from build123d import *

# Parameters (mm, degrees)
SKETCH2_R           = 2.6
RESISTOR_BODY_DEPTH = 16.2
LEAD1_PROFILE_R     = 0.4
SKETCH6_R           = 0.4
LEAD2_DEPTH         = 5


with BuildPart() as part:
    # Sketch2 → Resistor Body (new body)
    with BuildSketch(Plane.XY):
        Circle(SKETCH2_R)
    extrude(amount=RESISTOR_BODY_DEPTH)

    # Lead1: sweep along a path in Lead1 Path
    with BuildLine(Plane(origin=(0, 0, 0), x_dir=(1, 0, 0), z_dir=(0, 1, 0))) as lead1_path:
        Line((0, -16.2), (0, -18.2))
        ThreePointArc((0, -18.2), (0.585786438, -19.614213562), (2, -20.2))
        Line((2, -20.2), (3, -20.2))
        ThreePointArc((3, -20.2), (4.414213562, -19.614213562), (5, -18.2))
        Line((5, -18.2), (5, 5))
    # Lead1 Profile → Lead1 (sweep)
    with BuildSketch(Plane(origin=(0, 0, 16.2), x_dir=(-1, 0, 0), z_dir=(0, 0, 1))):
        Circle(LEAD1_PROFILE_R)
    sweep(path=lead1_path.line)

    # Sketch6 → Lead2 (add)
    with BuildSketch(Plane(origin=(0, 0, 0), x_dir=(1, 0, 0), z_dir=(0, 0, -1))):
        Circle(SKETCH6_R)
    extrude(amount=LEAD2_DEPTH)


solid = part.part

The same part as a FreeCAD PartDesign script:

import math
import FreeCAD as App
import Part
import Sketcher

V = App.Vector
Q = App.Units.Quantity

doc = App.newDocument("Part")
body = doc.addObject("PartDesign::Body", "Body")

# Sketch on XY plane
sketch1 = body.newObject("Sketcher::SketchObject", "Sketch")
sketch1.AttachmentSupport = (doc.getObject("XY_Plane"), [""])
sketch1.MapMode = "FlatFace"
sketch1.addGeometry(Part.Circle(V(0, 0, 0), V(0, 0, 1), 2.6), False)
sketch1.addConstraint(Sketcher.Constraint("Coincident", 0, 3, -1, 1))
sketch1.addConstraint(Sketcher.Constraint("Diameter", 0, Q("5.2 mm")))
pad1 = body.newObject("PartDesign::Pad", "Pad")
pad1.Profile = sketch1
pad1.Length = 16.2

# Sketch on XY plane
sketch2 = body.newObject("Sketcher::SketchObject", "Sketch001")
sketch2.AttachmentSupport = (doc.getObject("XY_Plane"), [""])
sketch2.MapMode = "FlatFace"
sketch2.AttachmentOffset = App.Placement(V(0, 0, 16.2), App.Rotation())
sketch2.addGeometry(Part.Circle(V(0, 0, 0), V(0, 0, 1), 0.4), False)
sketch2.addConstraint(Sketcher.Constraint("Coincident", 0, 3, -1, 1))
sketch2.addConstraint(Sketcher.Constraint("Diameter", 0, Q("0.8 mm")))

# Sketch on XZ plane
sketch3 = body.newObject("Sketcher::SketchObject", "Sketch002")
sketch3.AttachmentSupport = (doc.getObject("XZ_Plane"), [""])
sketch3.MapMode = "FlatFace"
sketch3.addGeometry(Part.LineSegment(V(0, 16.2, 0), V(0, 18.2, 0)), False)
sketch3.addGeometry(Part.ArcOfCircle(Part.Circle(V(2, 18.2, 0), V(0, 0, 1), 2), math.radians(90), math.radians(180)), False)
sketch3.addGeometry(Part.LineSegment(V(2, 20.2, 0), V(3, 20.2, 0)), False)
sketch3.addGeometry(Part.ArcOfCircle(Part.Circle(V(3, 18.2, 0), V(0, 0, 1), 2), math.radians(0), math.radians(90)), False)
sketch3.addGeometry(Part.LineSegment(V(5, 18.2, 0), V(5, -5, 0)), False)
sketch3.addConstraint(Sketcher.Constraint("Tangent", 0, 2, 1, 2))
sketch3.addConstraint(Sketcher.Constraint("Tangent", 1, 1, 2, 1))
sketch3.addConstraint(Sketcher.Constraint("Tangent", 2, 2, 3, 2))
sketch3.addConstraint(Sketcher.Constraint("Tangent", 3, 1, 4, 1))
sketch3.addConstraint(Sketcher.Constraint("Vertical", 0))
sketch3.addConstraint(Sketcher.Constraint("Horizontal", 2))
sketch3.addConstraint(Sketcher.Constraint("Vertical", 4))
sketch3.addConstraint(Sketcher.Constraint("Equal", 1, 3))
sketch3.addConstraint(Sketcher.Constraint("PointOnObject", 0, 1, -2))
sketch3.addConstraint(Sketcher.Constraint("Radius", 1, Q("2 mm")))
sketch3.addConstraint(Sketcher.Constraint("DistanceX", 2, 1, 2, 2, Q("1 mm")))
sketch3.addConstraint(Sketcher.Constraint("DistanceY", 0, 1, 0, 2, Q("2 mm")))
sketch3.addConstraint(Sketcher.Constraint("DistanceY", 4, 2, 4, 1, Q("23.2 mm")))
sketch3.addConstraint(Sketcher.Constraint("DistanceY", 4, 2, -1, 1, Q("5 mm")))
doc.recompute()

additivepipe = body.newObject("PartDesign::AdditivePipe", "AdditivePipe")
additivepipe.Profile = sketch2
additivepipe.Spine = (sketch3, ["Edge1", "Edge2", "Edge3", "Edge4", "Edge5"])

# Sketch on XY plane
sketch4 = body.newObject("Sketcher::SketchObject", "Sketch003")
sketch4.AttachmentSupport = (doc.getObject("XY_Plane"), [""])
sketch4.MapMode = "FlatFace"
sketch4.addGeometry(Part.Circle(V(0, 0, 0), V(0, 0, 1), 0.4), False)
sketch4.addConstraint(Sketcher.Constraint("Coincident", 0, 3, -1, 1))
sketch4.addConstraint(Sketcher.Constraint("Diameter", 0, Q("0.8 mm")))
pad2 = body.newObject("PartDesign::Pad", "Pad001")
pad2.Profile = sketch4
pad2.Length = 5
pad2.Reversed = True

doc.recompute()
